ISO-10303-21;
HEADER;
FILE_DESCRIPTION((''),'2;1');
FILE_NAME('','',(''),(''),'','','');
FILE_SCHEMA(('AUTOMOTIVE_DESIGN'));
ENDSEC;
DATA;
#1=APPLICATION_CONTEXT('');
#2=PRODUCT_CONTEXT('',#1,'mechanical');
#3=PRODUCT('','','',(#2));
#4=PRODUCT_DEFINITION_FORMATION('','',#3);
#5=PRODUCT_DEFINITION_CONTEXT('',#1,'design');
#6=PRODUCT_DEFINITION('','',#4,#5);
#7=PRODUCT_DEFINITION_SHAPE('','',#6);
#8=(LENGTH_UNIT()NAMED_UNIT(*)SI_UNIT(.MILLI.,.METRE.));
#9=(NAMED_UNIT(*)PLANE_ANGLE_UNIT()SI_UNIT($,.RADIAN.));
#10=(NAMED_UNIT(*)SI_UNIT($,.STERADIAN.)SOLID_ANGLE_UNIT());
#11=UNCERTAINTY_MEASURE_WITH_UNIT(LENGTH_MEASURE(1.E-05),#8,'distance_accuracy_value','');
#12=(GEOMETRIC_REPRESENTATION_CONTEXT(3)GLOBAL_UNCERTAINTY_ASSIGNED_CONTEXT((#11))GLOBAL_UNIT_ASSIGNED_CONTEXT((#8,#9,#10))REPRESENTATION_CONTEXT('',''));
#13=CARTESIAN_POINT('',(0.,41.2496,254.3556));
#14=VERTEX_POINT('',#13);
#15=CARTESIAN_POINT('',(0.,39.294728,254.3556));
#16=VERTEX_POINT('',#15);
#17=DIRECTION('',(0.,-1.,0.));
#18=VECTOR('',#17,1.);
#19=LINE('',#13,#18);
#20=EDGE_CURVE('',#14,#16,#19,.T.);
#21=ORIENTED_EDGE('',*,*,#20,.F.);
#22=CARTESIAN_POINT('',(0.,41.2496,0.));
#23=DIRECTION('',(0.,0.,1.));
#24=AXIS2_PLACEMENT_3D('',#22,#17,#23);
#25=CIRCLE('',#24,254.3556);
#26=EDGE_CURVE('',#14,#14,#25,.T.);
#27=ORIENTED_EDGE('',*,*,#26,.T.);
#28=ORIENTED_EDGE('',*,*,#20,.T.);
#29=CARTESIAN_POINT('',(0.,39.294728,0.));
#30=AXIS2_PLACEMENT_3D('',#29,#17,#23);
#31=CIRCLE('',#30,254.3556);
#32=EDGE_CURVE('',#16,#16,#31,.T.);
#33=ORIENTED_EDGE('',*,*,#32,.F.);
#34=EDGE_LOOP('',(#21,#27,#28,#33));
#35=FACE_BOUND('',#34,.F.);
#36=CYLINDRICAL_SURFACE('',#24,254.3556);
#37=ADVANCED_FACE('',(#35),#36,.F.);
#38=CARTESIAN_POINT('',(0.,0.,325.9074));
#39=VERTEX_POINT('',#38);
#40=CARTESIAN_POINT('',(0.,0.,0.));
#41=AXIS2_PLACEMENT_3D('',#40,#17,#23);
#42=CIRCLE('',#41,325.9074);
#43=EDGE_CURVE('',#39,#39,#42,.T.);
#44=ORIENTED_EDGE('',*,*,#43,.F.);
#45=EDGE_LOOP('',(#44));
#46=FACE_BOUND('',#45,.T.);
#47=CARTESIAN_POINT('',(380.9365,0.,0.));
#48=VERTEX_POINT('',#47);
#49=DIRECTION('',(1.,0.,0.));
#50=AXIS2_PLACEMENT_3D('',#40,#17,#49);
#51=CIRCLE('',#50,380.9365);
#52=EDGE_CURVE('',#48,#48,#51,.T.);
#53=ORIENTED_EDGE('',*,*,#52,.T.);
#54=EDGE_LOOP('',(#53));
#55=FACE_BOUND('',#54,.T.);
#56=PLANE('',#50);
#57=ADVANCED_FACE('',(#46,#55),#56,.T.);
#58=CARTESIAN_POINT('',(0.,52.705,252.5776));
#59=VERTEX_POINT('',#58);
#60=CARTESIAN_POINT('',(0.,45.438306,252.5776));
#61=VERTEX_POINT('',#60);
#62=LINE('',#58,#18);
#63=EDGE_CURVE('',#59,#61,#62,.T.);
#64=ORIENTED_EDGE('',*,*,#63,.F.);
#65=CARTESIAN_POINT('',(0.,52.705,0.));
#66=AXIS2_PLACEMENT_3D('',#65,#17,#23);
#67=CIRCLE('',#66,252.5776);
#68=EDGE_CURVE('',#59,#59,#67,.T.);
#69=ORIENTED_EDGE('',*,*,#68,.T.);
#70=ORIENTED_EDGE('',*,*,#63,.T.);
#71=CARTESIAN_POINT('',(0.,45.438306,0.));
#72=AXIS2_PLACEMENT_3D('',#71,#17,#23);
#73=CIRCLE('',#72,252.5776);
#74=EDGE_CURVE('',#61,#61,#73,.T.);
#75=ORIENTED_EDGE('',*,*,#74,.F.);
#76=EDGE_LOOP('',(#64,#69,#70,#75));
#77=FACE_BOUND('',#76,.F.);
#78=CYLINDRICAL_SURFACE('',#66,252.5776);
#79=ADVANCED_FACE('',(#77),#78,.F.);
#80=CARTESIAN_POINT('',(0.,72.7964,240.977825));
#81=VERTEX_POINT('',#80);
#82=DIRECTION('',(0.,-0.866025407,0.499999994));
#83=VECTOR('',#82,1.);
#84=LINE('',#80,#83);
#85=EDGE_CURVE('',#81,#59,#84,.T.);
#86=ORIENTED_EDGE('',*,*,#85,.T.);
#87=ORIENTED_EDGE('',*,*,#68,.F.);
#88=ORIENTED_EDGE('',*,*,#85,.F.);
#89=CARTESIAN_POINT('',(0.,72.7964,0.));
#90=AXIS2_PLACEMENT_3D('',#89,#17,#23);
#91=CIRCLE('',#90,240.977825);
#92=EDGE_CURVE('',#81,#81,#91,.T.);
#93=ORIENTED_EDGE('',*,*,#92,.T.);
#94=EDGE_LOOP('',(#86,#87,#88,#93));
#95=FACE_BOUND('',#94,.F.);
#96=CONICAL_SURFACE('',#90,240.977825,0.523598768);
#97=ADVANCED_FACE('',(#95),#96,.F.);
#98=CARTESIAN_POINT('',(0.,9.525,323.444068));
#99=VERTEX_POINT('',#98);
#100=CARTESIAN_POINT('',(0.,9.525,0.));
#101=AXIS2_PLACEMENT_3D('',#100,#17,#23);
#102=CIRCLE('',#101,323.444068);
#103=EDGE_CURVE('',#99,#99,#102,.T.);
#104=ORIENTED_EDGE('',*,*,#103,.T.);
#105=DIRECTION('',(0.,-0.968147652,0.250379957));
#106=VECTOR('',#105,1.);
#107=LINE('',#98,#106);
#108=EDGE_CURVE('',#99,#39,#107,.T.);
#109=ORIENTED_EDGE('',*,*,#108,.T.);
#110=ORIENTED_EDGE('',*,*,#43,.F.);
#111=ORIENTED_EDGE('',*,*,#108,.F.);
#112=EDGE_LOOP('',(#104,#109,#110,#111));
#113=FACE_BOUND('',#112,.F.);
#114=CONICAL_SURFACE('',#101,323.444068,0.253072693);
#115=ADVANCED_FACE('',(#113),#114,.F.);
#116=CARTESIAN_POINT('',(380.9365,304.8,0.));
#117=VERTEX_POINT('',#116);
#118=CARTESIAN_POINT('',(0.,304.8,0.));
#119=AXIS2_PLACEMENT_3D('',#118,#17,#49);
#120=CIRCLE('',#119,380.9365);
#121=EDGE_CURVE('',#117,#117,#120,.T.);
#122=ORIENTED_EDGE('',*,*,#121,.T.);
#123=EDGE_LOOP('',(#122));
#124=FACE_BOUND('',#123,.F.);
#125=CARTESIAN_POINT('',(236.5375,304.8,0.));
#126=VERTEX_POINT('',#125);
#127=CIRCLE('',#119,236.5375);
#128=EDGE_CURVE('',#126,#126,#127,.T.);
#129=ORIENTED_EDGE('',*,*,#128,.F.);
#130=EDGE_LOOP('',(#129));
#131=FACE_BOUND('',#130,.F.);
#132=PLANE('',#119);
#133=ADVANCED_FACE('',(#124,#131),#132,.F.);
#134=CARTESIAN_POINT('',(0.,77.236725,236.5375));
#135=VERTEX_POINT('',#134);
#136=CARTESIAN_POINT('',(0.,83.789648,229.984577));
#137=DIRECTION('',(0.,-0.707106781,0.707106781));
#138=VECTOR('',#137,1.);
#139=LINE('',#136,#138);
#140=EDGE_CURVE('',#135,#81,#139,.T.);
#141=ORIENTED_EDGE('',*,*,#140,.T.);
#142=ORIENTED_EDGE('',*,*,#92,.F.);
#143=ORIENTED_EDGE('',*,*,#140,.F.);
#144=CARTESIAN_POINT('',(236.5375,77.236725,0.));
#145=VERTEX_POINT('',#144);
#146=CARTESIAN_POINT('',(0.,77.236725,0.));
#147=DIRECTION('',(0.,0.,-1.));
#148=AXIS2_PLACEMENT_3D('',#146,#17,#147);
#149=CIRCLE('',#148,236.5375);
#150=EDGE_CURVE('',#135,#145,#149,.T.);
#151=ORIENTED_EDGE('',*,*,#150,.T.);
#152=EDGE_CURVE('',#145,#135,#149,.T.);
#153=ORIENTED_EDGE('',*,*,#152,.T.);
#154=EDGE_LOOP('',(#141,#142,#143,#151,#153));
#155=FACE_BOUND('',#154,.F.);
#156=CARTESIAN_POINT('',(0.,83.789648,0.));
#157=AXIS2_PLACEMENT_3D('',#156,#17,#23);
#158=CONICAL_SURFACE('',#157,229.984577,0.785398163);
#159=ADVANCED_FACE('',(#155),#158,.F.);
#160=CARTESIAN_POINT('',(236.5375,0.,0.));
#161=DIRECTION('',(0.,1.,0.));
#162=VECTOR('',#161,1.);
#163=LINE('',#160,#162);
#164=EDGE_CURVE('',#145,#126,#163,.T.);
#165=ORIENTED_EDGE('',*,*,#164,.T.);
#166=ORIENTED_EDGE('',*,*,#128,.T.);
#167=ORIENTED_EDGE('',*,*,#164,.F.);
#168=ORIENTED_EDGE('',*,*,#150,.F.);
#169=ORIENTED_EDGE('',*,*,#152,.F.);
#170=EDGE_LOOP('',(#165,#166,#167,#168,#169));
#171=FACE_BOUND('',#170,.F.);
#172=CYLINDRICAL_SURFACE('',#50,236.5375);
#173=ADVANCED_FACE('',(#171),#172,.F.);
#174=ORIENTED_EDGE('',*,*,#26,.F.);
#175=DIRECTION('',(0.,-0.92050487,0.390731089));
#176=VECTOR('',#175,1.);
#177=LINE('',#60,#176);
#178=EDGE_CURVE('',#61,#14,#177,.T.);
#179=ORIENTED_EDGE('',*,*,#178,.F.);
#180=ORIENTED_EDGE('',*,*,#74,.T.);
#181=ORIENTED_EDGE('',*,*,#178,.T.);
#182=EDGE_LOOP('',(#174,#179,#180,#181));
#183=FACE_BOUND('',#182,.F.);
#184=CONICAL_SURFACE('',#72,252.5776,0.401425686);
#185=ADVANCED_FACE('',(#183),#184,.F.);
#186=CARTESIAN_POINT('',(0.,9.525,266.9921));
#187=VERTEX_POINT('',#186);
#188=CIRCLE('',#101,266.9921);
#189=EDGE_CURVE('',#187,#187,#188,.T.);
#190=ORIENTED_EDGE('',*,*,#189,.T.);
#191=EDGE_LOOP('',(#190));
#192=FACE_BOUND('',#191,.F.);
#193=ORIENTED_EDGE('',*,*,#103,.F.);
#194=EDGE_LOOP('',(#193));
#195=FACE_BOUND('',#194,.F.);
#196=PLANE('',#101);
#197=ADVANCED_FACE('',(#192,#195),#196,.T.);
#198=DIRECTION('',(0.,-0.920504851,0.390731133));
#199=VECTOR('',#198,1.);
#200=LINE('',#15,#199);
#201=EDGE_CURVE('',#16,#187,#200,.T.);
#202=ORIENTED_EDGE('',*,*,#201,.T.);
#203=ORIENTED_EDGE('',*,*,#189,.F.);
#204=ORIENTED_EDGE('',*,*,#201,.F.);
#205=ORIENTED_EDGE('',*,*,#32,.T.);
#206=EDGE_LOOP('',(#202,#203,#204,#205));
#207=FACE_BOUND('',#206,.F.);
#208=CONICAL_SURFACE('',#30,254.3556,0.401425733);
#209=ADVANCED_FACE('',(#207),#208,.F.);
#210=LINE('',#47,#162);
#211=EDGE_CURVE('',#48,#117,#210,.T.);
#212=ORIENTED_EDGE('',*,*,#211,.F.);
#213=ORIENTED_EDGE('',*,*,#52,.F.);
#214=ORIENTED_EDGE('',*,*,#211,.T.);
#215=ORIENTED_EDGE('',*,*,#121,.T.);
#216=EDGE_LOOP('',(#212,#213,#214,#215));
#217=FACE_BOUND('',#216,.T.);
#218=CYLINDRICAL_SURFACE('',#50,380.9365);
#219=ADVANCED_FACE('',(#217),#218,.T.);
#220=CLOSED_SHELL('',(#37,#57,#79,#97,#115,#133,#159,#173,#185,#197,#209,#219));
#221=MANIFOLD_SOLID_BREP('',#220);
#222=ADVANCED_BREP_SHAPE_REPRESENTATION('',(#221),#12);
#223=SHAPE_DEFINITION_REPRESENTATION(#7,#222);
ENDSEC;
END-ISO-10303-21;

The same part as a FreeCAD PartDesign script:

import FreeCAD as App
import Part
import Sketcher
from FreeCAD import Vector
Q = App.Units.Quantity


def add_polygon(sketch, points):
    """Adds a closed chain of lines whose ends are joined by coincident constraints."""
    first, n = sketch.GeometryCount, len(points)
    for a, b in zip(points, points[1:] + points[:1]):
        sketch.addGeometry(Part.LineSegment(App.Vector(*a, 0), App.Vector(*b, 0)), False)
    for i in range(n):
        sketch.addConstraint(Sketcher.Constraint("Coincident", first + i, 2, first + (i + 1) % n, 1))

doc = App.newDocument("Part")
body = doc.addObject("PartDesign::Body", "Body")

sketch1 = body.newObject("Sketcher::SketchObject", "Sketch")
sketch1.AttachmentSupport = (doc.getObject("XZ_Plane"), [""])
sketch1.MapMode = "FlatFace"
sketch1.addGeometry([
    Part.Circle(Vector(0, 0, 0), Vector(0, 0, 1), 381),
    Part.Circle(Vector(0, 0, 0), Vector(0, 0, 1), 237),
], False)
sketch1.addConstraint([
    Sketcher.Constraint("Coincident", 0, 3, -1, 1),
    Sketcher.Constraint("Coincident", 1, 3, -1, 1),
    Sketcher.Constraint("Diameter", 0, Q("29.995 in")),
    Sketcher.Constraint("Diameter", 1, Q("18.625 in")),
])
pad1 = body.newObject("PartDesign::Pad", "Pad")
pad1.Profile = sketch1
pad1.Length = Q("12 in")
pad1.Reversed = True

sketch2 = body.newObject("Sketcher::SketchObject", "Sketch001")
sketch2.AttachmentSupport = (doc.getObject("YZ_Plane"), [""])
sketch2.MapMode = "FlatFace"
add_polygon(sketch2, [(-1, 0), (10, 0), (10, 323), (0, 326), (-38, 326)])
sketch2.addConstraint([
    Sketcher.Constraint("Horizontal", 0),
    Sketcher.Constraint("Vertical", 1),
    Sketcher.Constraint("Horizontal", 3),
    Sketcher.Constraint("PointOnObject", 0, 2, -1),
    Sketcher.Constraint("PointOnObject", 2, 2, -2),
    Sketcher.Constraint("Angle", 2, Q("165.500003 deg")),
    Sketcher.Constraint("DistanceX", -1, 1, 0, 2, Q("0.375 in")),
    Sketcher.Constraint("DistanceY", -1, 1, 2, 2, Q("12.831 in")),
    Sketcher.Constraint("DistanceX", 3, 2, 3, 1, Q("38.13795 mm")),
    Sketcher.Constraint("Distance", 4, Q("328.05355 mm")),
])
groove = body.newObject("PartDesign::Groove", "Groove")
groove.Profile = sketch2
groove.ReferenceAxis = (sketch2, ["H_Axis"])
groove.Angle = 360

sketch3 = body.newObject("Sketcher::SketchObject", "Sketch002")
sketch3.AttachmentSupport = (doc.getObject("YZ_Plane"), [""])
sketch3.MapMode = "FlatFace"
add_polygon(sketch3, [(39.3, 254.4), (9.5, 267), (-84, 267), (-48.1, 188), (83.8, 230), (72.8, 241), (52.7, 252.6), (45.4, 252.6), (41.2, 254.4)])
sketch3.addConstraint([
    Sketcher.Constraint("Horizontal", 1),
    Sketcher.Constraint("Horizontal", 6),
    Sketcher.Constraint("Horizontal", 8),
    Sketcher.Constraint("Parallel", 0, 7),
    Sketcher.Constraint("Angle", 0, Q("157 deg")),
    Sketcher.Constraint("Angle", 4, Q("135 deg")),
    Sketcher.Constraint("Angle", 5, Q("150 deg")),
    Sketcher.Constraint("DistanceX", 0, 2, 5, 2, Q("1.7 in")),
    Sketcher.Constraint("DistanceY", 6, 2, 7, 2, Q("0.07 in")),
    Sketcher.Constraint("DistanceX", -1, 1, 0, 2, Q("0.375 in")),
    Sketcher.Constraint("DistanceX", -1, 1, 4, 2, Q("2.866 in")),
    Sketcher.Constraint("DistanceY", -1, 1, 5, 2, Q("9.944 in")),
    Sketcher.Constraint("DistanceX", -1, 1, 7, 2, Q("1.624 in")),
    Sketcher.Constraint("DistanceY", -1, 1, 0, 2, Q("10.5115 in")),
    Sketcher.Constraint("Distance", 4, Q("15.5468 mm")),
    Sketcher.Constraint("Distance", 3, Q("138.38957 mm")),
    Sketcher.Constraint("DistanceX", 1, 2, 1, 1, Q("93.479796 mm")),
    Sketcher.Constraint("DistanceX", 2, 2, -1, 1, Q("48.076838 mm")),
])
groove2 = body.newObject("PartDesign::Groove", "Groove001")
groove2.Profile = sketch3
groove2.ReferenceAxis = (sketch3, ["H_Axis"])
groove2.Angle = 360

doc.recompute()
